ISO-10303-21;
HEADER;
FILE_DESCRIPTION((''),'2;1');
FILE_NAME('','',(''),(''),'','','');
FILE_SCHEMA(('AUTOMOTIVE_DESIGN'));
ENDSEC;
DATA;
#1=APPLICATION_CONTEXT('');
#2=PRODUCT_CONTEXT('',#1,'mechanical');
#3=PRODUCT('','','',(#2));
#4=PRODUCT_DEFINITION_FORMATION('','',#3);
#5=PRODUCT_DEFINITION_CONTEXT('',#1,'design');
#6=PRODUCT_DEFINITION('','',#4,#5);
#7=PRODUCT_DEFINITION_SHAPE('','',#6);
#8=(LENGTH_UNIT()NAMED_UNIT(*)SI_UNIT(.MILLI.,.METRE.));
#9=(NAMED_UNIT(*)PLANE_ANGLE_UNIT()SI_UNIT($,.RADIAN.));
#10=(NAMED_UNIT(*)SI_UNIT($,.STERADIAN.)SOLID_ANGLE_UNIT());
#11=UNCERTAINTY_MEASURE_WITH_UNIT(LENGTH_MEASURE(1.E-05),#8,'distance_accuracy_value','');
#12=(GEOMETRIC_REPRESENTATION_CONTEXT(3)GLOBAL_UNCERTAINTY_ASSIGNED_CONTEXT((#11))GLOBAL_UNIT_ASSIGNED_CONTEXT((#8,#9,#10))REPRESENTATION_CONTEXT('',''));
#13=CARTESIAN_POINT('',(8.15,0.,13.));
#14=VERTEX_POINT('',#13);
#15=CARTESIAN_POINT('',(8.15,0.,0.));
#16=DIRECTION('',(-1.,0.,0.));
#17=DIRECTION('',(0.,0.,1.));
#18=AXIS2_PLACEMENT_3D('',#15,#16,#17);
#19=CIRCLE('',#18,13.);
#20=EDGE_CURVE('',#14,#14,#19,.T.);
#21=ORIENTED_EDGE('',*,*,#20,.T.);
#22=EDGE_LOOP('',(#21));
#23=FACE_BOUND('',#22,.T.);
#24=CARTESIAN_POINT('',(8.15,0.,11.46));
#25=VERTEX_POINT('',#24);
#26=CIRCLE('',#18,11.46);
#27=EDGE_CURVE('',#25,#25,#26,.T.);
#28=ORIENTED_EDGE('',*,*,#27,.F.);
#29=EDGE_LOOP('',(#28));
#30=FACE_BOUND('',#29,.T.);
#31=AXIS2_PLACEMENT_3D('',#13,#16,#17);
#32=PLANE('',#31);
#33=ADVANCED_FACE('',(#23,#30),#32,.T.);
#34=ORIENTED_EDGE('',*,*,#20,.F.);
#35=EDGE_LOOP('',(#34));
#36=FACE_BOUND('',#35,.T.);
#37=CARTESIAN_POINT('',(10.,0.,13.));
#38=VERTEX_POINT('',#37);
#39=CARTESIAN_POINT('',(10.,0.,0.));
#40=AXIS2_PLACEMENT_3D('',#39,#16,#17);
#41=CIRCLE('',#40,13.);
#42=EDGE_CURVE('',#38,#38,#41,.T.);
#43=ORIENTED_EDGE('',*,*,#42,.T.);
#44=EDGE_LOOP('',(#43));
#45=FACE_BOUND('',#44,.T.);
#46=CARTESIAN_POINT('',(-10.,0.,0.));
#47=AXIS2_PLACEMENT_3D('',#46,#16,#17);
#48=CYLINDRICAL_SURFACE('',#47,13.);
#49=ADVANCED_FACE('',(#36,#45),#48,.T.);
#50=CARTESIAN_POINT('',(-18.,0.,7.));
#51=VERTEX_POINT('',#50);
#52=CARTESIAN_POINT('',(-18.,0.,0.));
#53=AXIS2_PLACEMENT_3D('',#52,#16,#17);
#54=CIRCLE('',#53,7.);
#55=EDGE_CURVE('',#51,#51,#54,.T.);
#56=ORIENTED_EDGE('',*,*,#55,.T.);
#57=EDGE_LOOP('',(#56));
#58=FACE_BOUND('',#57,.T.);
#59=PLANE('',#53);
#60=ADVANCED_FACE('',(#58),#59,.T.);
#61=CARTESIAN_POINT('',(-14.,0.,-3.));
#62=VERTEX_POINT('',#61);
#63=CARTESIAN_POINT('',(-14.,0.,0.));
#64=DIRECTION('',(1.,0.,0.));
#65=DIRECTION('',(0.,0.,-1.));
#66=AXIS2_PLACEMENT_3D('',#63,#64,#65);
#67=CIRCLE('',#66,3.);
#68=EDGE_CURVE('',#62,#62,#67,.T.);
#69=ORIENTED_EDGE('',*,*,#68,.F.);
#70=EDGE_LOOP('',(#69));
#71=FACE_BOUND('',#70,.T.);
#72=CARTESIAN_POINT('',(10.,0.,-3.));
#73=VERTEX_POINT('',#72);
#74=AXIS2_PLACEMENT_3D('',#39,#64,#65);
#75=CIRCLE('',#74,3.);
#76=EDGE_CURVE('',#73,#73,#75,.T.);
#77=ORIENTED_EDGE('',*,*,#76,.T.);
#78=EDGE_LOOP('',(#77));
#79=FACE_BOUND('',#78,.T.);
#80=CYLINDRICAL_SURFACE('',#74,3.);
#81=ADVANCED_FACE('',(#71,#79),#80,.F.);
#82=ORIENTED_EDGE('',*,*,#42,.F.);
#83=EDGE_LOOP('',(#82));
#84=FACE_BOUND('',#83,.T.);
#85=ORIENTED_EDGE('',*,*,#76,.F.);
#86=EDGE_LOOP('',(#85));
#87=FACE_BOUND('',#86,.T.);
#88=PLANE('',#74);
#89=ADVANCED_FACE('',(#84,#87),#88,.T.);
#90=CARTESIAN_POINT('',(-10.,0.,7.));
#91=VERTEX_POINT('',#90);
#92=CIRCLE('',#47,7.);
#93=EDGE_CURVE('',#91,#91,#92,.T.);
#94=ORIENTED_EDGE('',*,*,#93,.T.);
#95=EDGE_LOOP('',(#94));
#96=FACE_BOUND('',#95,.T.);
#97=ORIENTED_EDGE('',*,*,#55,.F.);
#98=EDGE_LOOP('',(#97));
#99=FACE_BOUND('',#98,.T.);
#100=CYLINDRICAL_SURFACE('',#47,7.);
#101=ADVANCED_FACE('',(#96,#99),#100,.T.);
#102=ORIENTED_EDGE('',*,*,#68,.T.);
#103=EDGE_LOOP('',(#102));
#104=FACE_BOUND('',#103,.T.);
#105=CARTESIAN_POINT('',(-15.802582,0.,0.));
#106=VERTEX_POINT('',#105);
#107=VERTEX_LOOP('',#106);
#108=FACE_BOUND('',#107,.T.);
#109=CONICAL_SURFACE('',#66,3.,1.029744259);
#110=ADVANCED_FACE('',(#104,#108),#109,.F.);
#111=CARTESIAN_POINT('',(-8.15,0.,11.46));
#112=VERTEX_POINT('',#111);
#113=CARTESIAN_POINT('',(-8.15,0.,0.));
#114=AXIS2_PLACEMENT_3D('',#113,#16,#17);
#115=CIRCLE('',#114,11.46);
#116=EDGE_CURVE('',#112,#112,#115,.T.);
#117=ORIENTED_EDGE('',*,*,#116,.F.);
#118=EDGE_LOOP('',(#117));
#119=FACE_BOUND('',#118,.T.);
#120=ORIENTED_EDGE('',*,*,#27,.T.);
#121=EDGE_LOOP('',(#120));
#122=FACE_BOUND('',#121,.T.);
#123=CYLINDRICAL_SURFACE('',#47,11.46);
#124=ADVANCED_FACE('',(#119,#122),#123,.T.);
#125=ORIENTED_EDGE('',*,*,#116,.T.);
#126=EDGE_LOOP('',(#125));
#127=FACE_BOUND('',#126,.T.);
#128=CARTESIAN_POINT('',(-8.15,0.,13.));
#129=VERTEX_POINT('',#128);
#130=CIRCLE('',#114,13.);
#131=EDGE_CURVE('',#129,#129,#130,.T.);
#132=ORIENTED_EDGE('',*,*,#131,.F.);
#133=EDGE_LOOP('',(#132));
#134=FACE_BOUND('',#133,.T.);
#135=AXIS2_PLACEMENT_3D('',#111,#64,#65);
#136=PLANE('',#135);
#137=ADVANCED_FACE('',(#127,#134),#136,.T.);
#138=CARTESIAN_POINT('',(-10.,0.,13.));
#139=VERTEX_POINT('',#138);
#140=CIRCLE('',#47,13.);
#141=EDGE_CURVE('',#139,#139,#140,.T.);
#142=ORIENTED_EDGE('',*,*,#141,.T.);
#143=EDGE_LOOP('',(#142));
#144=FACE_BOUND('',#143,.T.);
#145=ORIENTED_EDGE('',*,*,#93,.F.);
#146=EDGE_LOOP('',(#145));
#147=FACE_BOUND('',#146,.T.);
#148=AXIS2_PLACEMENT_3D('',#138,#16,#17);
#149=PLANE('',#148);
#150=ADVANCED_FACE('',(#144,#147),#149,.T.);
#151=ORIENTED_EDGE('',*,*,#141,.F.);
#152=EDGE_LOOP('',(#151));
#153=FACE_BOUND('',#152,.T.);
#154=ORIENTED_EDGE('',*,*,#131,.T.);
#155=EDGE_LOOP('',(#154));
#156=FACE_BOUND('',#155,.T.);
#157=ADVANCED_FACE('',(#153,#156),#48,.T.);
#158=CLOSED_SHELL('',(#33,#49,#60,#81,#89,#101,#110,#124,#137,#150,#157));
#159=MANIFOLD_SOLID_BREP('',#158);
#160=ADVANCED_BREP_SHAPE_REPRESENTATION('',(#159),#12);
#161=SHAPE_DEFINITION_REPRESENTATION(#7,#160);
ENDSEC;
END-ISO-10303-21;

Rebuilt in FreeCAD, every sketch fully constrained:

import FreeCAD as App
import Part
import Sketcher
from FreeCAD import Vector


def add_polygon(sketch, points):
    """Adds a closed chain of lines whose ends are joined by coincident constraints."""
    first, n = sketch.GeometryCount, len(points)
    for a, b in zip(points, points[1:] + points[:1]):
        sketch.addGeometry(Part.LineSegment(App.Vector(*a, 0), App.Vector(*b, 0)), False)
    for i in range(n):
        sketch.addConstraint(Sketcher.Constraint("Coincident", first + i, 2, first + (i + 1) % n, 1))

doc = App.newDocument("Part")
body = doc.addObject("PartDesign::Body", "Body")

sketch1 = body.newObject("Sketcher::SketchObject", "Sketch")
sketch1.AttachmentSupport = (doc.getObject("XZ_Plane"), [""])
sketch1.MapMode = "FlatFace"
add_polygon(sketch1, [(-8.2, 11.5), (8.2, 11.5), (8.2, 13), (10, 13), (10, 0), (-18, 0), (-18, 7), (-10, 7), (-10, 13), (-8.2, 13)])
sketch1.addConstraint([
    Sketcher.Constraint("Horizontal", 0),
    Sketcher.Constraint("Vertical", 1),
    Sketcher.Constraint("Horizontal", 2),
    Sketcher.Constraint("Vertical", 3),
    Sketcher.Constraint("Horizontal", 4),
    Sketcher.Constraint("Vertical", 5),
    Sketcher.Constraint("Horizontal", 6),
    Sketcher.Constraint("Vertical", 7),
    Sketcher.Constraint("Horizontal", 8),
    Sketcher.Constraint("Vertical", 9),
    Sketcher.Constraint("Symmetric", 2, 2, 7, 2, -2),
    Sketcher.Constraint("PointOnObject", 3, 2, -1),
    Sketcher.Constraint("Equal", 2, 8),
    Sketcher.Constraint("DistanceX", 4, 2, 4, 1, 28.0),
    Sketcher.Constraint("DistanceX", 6, 1, 6, 2, 8.0),
    Sketcher.Constraint("DistanceY", 3, 2, 3, 1, 13.0),
    Sketcher.Constraint("DistanceY", 5, 1, 5, 2, 7.0),
    Sketcher.Constraint("DistanceX", 0, 1, 0, 2, 16.3),
    Sketcher.Constraint("DistanceY", 1, 1, 1, 2, 1.54),
])
revolution = body.newObject("PartDesign::Revolution", "Revolution")
revolution.Profile = sketch1
revolution.ReferenceAxis = (sketch1, ["H_Axis"])
revolution.Angle = 360

sketch2 = body.newObject("Sketcher::SketchObject", "Sketch001")
sketch2.AttachmentSupport = (doc.getObject("YZ_Plane"), [""])
sketch2.MapMode = "FlatFace"
sketch2.AttachmentOffset = App.Placement(Vector(0, 0, 10), App.Rotation())
sketch2.addGeometry(Part.Circle(Vector(0, 0, 0), Vector(0, 0, 1), 3), False)
sketch2.addConstraint([
    Sketcher.Constraint("Coincident", 0, 3, -1, 1),
    Sketcher.Constraint("Diameter", 0, 6.0),
])
doc.recompute()
hole = body.newObject("PartDesign::Hole", "Hole")
hole.Profile = sketch2
hole.ThreadType = "None"
hole.Diameter = 6
hole.DepthType = "Dimension"
hole.Depth = 24
hole.DrillPoint = "Angled"
hole.DrillPointAngle = 118

doc.recompute()
